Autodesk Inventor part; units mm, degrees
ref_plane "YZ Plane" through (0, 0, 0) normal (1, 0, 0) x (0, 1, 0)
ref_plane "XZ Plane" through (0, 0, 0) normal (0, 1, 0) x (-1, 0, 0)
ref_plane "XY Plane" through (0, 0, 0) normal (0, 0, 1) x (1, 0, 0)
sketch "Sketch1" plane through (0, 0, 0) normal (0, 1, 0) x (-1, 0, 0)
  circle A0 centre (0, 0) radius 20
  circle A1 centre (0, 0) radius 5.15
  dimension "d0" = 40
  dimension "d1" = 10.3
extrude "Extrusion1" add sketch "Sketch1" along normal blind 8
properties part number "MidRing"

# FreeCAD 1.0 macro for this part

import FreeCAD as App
import Part
import Sketcher
Q = App.Units.Quantity

doc = App.newDocument("Part")
params = doc.addObject("Spreadsheet::Sheet", "Params")
for row, (alias, value) in enumerate([
    ("sketch1_diameter", "40 mm"),
    ("sketch1_diameter2", "10.3 mm"),
    ("pad1_length", "8 mm"),
], start=1):
    params.set(f"A{row}", alias)
    params.set(f"B{row}", "=" + value)
    params.setAlias(f"B{row}", alias)

body = doc.addObject("PartDesign::Body", "Body")

# Sketch on XZ plane
sketch1 = body.newObject("Sketcher::SketchObject", "Sketch")
sketch1.AttachmentSupport = (doc.getObject("XZ_Plane"), [""])
sketch1.MapMode = "FlatFace"
sketch1.addGeometry([
    Part.Circle(App.Vector(0, 0, 0), App.Vector(0, 0, 1), 20),
    Part.Circle(App.Vector(0, 0, 0), App.Vector(0, 0, 1), 5),
], False)
sketch1.addConstraint([
    Sketcher.Constraint("Coincident", 0, 3, -1, 1),
    Sketcher.Constraint("Coincident", 1, 3, -1, 1),
    Sketcher.Constraint("Diameter", 0, Q("40 mm")),
    Sketcher.Constraint("Diameter", 1, Q("10.3 mm")),
])
sketch1.setExpression("Constraints[2]", "Params.sketch1_diameter")
sketch1.setExpression("Constraints[3]", "Params.sketch1_diameter2")
pad1 = body.newObject("PartDesign::Pad", "Pad")
pad1.Profile = sketch1
pad1.setExpression("Length", "Params.pad1_length")
pad1.Reversed = True

doc.recompute()
